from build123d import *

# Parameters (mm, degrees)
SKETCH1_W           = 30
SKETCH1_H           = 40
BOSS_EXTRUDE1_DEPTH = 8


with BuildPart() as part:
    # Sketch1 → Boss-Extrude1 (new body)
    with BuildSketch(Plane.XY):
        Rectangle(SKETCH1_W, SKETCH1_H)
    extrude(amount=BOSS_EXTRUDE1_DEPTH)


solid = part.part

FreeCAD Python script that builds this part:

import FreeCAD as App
import Part
import Sketcher

V = App.Vector


def add_polygon(sketch, points):
    """Adds a closed chain of lines whose ends are joined by coincident constraints."""
    first, n = sketch.GeometryCount, len(points)
    for a, b in zip(points, points[1:] + points[:1]):
        sketch.addGeometry(Part.LineSegment(App.Vector(*a, 0), App.Vector(*b, 0)), False)
    for i in range(n):
        sketch.addConstraint(Sketcher.Constraint("Coincident", first + i, 2, first + (i + 1) % n, 1))

doc = App.newDocument("Part")
body = doc.addObject("PartDesign::Body", "Body")

# Sketch on XY plane
sketch1 = body.newObject("Sketcher::SketchObject", "Sketch")
sketch1.AttachmentSupport = (doc.getObject("XY_Plane"), [""])
sketch1.MapMode = "FlatFace"
add_polygon(sketch1, [(-15, 20), (-15, -20), (15, -20), (15, 20)])  # lines 0-3
sketch1.addConstraint([
    Sketcher.Constraint("Vertical", 0),
    Sketcher.Constraint("Horizontal", 1),
    Sketcher.Constraint("Vertical", 2),
    Sketcher.Constraint("Horizontal", 3),
    Sketcher.Constraint("Symmetric", 0, 2, 2, 2, -1, 1),
    Sketcher.Constraint("DistanceX", 1, 1, 1, 2, 30.0),
    Sketcher.Constraint("DistanceY", 0, 2, 0, 1, 40.0),
])
pad1 = body.newObject("PartDesign::Pad", "Pad")
pad1.Profile = sketch1
pad1.Length = 8

doc.recompute()
